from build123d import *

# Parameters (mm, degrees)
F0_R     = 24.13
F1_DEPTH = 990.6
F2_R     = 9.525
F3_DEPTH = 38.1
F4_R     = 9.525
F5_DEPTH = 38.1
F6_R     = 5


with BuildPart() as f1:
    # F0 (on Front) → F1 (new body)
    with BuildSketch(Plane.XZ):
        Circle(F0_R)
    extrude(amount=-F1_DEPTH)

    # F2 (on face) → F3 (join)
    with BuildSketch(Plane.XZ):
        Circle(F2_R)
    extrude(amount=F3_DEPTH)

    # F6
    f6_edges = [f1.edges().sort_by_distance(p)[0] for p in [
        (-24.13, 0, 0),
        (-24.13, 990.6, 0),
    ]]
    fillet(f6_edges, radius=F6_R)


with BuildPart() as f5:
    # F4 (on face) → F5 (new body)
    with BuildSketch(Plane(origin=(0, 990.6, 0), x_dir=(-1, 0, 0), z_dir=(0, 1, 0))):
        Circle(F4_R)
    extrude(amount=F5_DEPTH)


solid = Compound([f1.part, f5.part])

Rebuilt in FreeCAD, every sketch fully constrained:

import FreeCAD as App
import Part
import Sketcher
from FreeCAD import Vector
Q = App.Units.Quantity


def edges_at(feature, points):
    """Names of the edges that pass closest to the given points."""
    edges = feature.Shape.Edges
    near = lambda p: min(range(len(edges)), key=lambda i: edges[i].distToShape(Part.Vertex(*p))[0])
    return sorted({f"Edge{near(p) + 1}" for p in points})

doc = App.newDocument("Part")
body = doc.addObject("PartDesign::Body", "Body")

# Sketch on XZ plane
sketch1 = body.newObject("Sketcher::SketchObject", "Sketch")
sketch1.AttachmentSupport = (doc.getObject("XZ_Plane"), [""])
sketch1.MapMode = "FlatFace"
sketch1.addGeometry(Part.Circle(Vector(0, 0, 0), Vector(0, 0, 1), 24), False)
sketch1.addConstraint([
    Sketcher.Constraint("Coincident", 0, 3, -1, 1),
    Sketcher.Constraint("Diameter", 0, Q("1.9 in")),
])
pad1 = body.newObject("PartDesign::Pad", "Pad")
pad1.Profile = sketch1
pad1.Length = Q("39 in")
pad1.Reversed = True

# Sketch on XZ plane
sketch2 = body.newObject("Sketcher::SketchObject", "Sketch001")
sketch2.AttachmentSupport = (doc.getObject("XZ_Plane"), [""])
sketch2.MapMode = "FlatFace"
sketch2.addGeometry(Part.Circle(Vector(0, 0, 0), Vector(0, 0, 1), 10), False)
sketch2.addConstraint([
    Sketcher.Constraint("Coincident", 0, 3, -1, 1),
    Sketcher.Constraint("Diameter", 0, Q("0.75 in")),
])
pad2 = body.newObject("PartDesign::Pad", "Pad001")
pad2.Profile = sketch2
pad2.Length = Q("1.5 in")
doc.recompute()

fillet = body.newObject("PartDesign::Fillet", "Fillet")
fillet.Base = (pad2, edges_at(pad2, [(-24.13, 0, 0), (-24.13, 990.6, 0)]))
fillet.Radius = 5
body2 = doc.addObject("PartDesign::Body", "Body001")

# Sketch on XZ plane
sketch3 = body2.newObject("Sketcher::SketchObject", "Sketch002")
sketch3.AttachmentSupport = (doc.getObject("XZ_Plane001"), [""])
sketch3.MapMode = "FlatFace"
sketch3.AttachmentOffset = App.Placement(Vector(0, 0, -39 * 25.4), App.Rotation())
sketch3.addGeometry(Part.Circle(Vector(0, 0, 0), Vector(0, 0, 1), 10), False)
sketch3.addConstraint([
    Sketcher.Constraint("Coincident", 0, 3, -1, 1),
    Sketcher.Constraint("Diameter", 0, Q("0.75 in")),
])
pad3 = body2.newObject("PartDesign::Pad", "Pad002")
pad3.Profile = sketch3
pad3.Length = Q("1.5 in")
pad3.Reversed = True

doc.recompute()
